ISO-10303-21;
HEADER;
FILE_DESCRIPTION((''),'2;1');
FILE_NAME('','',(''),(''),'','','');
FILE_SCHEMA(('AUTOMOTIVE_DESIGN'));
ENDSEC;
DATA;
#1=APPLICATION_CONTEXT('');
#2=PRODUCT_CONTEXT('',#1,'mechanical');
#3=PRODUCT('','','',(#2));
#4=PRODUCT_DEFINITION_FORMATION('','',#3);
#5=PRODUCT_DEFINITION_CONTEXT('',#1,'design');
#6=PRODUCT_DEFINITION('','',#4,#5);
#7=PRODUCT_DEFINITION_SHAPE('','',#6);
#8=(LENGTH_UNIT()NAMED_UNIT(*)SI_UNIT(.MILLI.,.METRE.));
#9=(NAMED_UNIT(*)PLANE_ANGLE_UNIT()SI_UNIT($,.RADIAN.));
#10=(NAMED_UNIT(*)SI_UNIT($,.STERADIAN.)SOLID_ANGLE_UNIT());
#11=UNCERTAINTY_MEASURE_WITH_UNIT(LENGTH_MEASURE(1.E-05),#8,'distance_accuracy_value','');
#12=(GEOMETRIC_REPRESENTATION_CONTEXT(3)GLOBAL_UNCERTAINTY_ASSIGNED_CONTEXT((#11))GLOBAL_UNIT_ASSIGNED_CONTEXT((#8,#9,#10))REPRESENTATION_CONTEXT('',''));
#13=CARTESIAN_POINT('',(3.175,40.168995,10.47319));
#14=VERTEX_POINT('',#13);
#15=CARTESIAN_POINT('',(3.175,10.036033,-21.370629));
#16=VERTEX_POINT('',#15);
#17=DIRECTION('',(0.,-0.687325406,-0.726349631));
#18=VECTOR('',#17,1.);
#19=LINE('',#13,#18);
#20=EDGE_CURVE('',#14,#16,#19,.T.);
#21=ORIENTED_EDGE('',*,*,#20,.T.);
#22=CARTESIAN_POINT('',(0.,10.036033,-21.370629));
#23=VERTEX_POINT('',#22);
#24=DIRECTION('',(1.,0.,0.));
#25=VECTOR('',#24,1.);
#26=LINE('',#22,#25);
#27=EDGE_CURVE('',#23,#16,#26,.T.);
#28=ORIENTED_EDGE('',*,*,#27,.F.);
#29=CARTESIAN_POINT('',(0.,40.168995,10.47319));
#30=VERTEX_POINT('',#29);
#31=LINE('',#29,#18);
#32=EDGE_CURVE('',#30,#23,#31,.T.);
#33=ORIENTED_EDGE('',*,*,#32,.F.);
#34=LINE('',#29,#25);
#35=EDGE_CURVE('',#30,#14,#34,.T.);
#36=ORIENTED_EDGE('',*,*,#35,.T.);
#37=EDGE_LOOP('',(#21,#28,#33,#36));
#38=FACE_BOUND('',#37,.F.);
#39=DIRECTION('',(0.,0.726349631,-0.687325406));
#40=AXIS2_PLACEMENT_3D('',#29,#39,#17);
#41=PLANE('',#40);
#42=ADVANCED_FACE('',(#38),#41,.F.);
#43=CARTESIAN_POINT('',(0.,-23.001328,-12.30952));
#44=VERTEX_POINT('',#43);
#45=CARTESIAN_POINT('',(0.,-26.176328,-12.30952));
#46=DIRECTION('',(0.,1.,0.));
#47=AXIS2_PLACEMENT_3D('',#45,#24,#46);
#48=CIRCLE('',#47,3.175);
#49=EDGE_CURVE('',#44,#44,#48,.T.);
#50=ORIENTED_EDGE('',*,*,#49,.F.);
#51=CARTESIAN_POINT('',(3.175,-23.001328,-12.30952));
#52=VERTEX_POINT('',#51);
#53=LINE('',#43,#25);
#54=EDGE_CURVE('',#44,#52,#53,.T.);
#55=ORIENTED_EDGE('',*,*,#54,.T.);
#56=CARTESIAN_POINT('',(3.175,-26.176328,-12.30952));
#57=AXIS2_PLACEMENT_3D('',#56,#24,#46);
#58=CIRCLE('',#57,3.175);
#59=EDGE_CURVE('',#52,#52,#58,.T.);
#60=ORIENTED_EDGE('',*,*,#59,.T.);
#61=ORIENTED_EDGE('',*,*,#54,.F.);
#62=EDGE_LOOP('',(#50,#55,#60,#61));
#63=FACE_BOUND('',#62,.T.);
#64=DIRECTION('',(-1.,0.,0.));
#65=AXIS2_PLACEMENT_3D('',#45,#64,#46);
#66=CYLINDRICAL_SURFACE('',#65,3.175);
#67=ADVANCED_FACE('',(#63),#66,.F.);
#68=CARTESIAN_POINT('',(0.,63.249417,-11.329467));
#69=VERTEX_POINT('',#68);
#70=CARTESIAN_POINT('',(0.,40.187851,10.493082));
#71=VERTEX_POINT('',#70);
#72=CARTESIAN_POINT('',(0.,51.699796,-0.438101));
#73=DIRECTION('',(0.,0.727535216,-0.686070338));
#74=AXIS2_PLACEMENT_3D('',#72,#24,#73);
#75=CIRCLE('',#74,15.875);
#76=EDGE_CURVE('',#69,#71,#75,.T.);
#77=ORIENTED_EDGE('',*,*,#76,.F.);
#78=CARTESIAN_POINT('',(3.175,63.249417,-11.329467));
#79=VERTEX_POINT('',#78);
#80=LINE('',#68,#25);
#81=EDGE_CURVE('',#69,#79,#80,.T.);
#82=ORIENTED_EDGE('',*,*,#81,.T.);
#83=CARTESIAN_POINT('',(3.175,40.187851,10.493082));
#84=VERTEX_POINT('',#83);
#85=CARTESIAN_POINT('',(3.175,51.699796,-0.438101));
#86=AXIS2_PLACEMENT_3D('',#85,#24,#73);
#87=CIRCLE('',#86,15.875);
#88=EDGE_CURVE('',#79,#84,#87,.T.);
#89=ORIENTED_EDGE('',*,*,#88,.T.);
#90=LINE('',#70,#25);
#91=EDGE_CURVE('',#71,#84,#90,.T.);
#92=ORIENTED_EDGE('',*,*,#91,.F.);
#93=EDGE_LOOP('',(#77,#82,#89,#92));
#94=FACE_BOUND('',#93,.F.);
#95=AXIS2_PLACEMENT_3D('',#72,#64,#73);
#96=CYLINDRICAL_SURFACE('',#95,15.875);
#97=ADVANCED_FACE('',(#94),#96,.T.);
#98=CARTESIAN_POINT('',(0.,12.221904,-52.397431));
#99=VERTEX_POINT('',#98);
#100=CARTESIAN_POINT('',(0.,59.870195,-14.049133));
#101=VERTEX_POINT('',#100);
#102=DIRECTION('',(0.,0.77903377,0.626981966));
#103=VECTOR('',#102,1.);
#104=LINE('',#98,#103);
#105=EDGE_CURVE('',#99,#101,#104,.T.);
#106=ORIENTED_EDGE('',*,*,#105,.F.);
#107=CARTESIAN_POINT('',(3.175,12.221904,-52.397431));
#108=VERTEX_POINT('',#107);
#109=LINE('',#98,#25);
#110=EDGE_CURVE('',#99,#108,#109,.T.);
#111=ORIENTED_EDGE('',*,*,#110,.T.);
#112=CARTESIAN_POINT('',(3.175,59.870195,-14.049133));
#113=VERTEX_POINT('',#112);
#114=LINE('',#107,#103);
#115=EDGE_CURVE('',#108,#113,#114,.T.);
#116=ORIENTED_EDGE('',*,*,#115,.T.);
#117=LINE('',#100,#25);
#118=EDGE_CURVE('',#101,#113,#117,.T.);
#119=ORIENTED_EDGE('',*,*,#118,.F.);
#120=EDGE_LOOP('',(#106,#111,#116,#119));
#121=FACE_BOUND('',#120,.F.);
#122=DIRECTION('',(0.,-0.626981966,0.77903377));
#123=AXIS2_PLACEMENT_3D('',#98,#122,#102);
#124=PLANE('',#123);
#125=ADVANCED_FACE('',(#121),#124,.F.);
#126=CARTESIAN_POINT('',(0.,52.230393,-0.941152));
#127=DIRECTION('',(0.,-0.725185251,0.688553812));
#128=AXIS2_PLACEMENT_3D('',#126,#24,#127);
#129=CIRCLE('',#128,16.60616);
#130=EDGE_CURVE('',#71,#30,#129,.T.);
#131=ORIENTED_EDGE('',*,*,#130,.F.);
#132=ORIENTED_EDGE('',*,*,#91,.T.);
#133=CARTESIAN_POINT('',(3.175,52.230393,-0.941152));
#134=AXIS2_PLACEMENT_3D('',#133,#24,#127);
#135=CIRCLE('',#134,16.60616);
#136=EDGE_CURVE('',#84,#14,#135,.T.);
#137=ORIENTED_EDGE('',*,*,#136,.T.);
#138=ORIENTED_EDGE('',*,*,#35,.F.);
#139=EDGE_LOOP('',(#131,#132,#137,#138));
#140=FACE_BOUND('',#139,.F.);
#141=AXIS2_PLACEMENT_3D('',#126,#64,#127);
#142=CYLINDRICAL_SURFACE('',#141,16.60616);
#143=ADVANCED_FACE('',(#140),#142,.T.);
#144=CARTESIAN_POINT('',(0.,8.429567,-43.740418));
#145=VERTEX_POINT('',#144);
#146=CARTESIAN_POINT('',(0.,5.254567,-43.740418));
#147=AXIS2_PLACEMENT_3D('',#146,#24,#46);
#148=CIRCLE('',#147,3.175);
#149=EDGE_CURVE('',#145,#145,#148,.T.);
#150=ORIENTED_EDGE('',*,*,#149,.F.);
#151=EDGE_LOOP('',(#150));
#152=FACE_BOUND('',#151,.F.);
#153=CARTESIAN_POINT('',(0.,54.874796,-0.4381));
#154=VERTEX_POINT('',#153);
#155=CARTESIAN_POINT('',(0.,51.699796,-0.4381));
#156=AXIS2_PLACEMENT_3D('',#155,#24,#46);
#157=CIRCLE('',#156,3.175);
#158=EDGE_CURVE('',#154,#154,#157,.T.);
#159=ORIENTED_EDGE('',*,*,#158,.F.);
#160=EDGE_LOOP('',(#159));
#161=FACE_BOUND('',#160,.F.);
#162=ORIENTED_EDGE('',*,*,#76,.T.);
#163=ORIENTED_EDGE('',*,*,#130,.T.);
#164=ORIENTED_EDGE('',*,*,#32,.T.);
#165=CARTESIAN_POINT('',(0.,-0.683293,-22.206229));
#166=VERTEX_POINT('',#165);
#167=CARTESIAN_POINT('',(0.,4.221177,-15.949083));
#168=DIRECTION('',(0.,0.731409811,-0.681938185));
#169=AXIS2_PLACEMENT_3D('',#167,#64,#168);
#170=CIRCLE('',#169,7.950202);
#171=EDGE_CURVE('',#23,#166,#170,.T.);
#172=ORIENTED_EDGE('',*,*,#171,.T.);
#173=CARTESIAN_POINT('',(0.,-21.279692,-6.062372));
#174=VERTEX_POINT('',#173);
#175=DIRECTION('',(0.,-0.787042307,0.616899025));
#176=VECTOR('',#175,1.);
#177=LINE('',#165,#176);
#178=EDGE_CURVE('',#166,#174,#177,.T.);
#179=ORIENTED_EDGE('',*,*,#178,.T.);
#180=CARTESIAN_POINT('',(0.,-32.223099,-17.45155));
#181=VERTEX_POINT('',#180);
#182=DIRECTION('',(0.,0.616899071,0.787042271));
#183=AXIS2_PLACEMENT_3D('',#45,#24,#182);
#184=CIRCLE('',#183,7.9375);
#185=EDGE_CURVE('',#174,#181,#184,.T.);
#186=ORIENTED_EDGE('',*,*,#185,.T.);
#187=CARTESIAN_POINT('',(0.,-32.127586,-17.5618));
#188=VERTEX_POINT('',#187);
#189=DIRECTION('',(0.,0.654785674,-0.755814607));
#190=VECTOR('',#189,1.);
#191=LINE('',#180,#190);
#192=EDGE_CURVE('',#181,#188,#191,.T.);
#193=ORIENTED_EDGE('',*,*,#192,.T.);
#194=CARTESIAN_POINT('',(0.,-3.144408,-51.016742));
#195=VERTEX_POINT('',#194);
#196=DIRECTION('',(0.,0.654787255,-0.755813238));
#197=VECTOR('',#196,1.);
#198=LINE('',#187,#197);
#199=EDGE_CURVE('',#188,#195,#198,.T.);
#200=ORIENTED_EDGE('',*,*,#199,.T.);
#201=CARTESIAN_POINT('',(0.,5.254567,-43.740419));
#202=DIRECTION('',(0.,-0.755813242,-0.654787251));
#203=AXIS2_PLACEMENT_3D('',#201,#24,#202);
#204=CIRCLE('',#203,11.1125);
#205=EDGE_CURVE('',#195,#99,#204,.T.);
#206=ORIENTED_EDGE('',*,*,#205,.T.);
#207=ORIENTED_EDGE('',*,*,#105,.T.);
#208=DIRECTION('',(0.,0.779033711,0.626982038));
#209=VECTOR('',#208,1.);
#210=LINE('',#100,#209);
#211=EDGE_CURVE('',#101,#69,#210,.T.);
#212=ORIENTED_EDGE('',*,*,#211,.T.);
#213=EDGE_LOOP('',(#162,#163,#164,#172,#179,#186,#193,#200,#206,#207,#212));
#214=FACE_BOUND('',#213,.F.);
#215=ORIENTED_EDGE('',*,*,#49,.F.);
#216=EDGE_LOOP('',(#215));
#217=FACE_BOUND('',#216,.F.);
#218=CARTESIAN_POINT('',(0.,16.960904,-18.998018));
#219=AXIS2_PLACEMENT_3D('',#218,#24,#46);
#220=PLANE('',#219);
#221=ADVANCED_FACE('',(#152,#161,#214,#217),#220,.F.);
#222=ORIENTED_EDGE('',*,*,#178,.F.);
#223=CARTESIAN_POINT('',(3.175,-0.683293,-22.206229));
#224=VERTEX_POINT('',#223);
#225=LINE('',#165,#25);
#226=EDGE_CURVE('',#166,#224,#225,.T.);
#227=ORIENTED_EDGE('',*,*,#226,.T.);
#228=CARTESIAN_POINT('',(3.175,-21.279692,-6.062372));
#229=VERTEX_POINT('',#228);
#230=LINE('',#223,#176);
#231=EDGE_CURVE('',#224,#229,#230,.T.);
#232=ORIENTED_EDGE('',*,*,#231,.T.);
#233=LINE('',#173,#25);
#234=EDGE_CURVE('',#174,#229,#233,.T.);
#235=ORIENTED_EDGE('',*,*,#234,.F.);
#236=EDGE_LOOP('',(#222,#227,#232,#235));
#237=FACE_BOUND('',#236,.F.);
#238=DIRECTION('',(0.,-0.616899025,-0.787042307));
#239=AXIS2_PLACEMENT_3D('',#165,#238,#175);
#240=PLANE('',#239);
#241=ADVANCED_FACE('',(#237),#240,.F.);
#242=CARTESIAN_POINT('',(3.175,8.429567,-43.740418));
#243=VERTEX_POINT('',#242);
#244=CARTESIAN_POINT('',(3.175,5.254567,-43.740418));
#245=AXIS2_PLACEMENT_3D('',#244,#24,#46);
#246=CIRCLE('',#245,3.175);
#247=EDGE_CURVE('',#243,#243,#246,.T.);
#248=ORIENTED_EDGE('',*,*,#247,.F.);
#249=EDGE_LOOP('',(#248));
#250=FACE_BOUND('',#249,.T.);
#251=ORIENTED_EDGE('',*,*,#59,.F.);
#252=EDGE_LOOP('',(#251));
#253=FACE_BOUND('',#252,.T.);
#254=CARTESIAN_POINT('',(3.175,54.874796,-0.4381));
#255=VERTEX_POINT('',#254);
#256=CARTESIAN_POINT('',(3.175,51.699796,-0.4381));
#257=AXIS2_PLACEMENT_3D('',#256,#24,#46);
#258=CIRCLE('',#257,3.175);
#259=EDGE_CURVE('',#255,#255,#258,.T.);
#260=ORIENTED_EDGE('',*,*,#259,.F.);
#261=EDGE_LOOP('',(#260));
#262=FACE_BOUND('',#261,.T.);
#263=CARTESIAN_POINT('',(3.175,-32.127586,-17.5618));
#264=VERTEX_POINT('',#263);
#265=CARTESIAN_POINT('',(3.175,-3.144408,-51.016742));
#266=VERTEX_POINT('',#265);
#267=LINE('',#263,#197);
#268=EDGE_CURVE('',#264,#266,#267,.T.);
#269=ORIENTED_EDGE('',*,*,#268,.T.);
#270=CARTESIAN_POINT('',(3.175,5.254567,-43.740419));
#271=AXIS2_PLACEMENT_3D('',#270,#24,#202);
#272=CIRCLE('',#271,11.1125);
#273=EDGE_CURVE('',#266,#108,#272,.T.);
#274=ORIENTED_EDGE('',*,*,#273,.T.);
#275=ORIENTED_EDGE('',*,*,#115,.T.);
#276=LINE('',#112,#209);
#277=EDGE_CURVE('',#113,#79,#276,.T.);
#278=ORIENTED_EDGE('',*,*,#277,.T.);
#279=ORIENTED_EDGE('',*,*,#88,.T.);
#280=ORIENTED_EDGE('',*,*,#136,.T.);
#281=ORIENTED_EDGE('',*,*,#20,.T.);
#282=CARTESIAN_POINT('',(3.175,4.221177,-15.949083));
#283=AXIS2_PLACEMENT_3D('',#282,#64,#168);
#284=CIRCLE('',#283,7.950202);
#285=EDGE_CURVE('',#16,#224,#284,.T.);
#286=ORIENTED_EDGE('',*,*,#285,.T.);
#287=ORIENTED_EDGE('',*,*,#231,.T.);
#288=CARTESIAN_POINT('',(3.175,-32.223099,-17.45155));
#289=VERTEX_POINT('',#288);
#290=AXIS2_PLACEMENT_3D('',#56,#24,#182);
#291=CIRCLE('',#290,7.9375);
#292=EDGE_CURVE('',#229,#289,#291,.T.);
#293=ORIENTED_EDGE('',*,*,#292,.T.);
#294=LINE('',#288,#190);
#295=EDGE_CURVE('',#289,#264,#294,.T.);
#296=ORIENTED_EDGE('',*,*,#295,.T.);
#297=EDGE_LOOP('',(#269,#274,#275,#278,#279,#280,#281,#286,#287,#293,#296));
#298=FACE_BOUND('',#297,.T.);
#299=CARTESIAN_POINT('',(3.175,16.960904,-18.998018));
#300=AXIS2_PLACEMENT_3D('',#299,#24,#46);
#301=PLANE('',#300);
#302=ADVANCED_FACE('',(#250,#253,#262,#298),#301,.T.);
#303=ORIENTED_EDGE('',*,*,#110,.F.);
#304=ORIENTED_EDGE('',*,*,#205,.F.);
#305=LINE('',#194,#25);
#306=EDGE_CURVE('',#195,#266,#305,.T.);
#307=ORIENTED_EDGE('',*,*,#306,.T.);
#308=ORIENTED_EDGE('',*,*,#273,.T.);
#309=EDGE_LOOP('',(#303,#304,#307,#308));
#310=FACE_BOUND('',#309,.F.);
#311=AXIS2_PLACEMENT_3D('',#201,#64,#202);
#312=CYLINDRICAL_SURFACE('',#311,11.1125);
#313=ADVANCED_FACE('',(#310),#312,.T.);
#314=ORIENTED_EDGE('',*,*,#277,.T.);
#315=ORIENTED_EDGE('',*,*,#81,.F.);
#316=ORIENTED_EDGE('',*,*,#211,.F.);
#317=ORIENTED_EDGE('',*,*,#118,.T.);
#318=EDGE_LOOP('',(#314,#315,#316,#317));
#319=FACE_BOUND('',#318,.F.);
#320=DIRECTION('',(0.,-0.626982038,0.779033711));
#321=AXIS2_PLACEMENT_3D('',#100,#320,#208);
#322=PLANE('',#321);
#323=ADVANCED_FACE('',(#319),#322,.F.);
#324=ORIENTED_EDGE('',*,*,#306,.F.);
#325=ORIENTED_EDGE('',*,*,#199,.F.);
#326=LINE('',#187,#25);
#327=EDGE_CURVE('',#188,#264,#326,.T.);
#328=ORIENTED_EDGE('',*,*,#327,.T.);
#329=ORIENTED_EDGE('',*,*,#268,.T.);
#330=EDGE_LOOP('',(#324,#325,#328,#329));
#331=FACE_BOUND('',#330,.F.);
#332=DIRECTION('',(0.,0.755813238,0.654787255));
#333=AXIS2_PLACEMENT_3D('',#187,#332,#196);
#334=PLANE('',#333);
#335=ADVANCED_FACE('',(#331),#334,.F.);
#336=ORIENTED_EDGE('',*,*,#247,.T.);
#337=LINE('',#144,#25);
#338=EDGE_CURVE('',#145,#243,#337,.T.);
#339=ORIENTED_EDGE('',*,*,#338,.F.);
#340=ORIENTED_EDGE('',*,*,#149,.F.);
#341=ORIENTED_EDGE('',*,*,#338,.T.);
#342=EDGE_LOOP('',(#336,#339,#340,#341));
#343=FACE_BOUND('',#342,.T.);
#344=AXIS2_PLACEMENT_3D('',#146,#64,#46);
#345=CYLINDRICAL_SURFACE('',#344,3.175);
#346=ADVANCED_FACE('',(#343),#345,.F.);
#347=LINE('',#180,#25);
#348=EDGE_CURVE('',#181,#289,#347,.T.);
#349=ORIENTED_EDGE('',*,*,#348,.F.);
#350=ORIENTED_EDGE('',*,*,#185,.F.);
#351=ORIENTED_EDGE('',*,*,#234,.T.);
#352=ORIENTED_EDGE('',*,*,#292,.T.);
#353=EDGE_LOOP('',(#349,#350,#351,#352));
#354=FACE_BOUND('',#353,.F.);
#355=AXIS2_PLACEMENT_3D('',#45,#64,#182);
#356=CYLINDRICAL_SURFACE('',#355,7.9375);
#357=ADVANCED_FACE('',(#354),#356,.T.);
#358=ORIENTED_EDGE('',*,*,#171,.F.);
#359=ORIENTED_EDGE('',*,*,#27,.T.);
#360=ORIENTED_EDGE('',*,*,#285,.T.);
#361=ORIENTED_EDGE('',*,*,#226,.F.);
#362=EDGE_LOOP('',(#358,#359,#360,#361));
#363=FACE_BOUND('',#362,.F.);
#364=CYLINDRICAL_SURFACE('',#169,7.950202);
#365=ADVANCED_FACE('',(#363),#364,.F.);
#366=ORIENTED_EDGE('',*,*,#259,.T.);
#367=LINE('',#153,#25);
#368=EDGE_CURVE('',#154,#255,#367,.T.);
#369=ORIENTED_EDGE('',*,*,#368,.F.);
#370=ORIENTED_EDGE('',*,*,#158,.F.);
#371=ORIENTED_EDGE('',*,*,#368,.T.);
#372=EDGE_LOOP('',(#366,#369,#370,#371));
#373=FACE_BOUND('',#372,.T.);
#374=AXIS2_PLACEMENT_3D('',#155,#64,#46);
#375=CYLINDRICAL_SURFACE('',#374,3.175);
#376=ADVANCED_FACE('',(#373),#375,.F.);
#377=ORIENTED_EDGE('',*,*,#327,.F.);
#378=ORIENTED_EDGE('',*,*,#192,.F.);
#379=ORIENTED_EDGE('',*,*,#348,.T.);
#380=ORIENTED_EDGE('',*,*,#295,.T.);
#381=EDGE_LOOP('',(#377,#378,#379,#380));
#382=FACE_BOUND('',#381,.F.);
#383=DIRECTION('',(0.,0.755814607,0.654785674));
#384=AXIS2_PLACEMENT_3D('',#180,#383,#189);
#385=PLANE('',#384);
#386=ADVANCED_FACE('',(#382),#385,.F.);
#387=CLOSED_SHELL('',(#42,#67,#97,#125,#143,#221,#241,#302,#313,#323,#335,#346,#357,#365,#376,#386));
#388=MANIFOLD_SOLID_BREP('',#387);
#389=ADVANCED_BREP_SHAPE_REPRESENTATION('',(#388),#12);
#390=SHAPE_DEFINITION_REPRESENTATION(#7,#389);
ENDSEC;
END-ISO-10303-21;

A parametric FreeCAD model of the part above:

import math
import FreeCAD as App
import Part
import Sketcher
Q = App.Units.Quantity

doc = App.newDocument("Part")
params = doc.addObject("Spreadsheet::Sheet", "Params")
for row, (alias, value) in enumerate([
    ("sketch1_diameter", "0.25 in"),
    ("sketch1_radius", "0.3125 in"),
    ("sketch1_radius2", "0.4375 in"),
    ("sketch1_radius3", "0.625 in"),
    ("sketch1_radius4", "0.3130001 in"),
    ("pad1_length", "0.125 in"),
], start=1):
    params.set(f"A{row}", alias)
    params.set(f"B{row}", "=" + value)
    params.setAlias(f"B{row}", alias)

body = doc.addObject("PartDesign::Body", "Body")

sketch1 = body.newObject("Sketcher::SketchObject", "Sketch")
sketch1.AttachmentSupport = (doc.getObject("YZ_Plane"), [""])
sketch1.MapMode = "FlatFace"
sketch1.addGeometry(Part.LineSegment(App.Vector(-0.683293, -22.206229, 0), App.Vector(-21.279692, -6.062372, 0)), False)
sketch1.addGeometry(Part.ArcOfCircle(Part.Circle(App.Vector(-26.176328, -12.30952, 0), App.Vector(0, 0, 1), 7.9375), math.radians(51.90996), math.radians(220.377049)), False)
sketch1.addGeometry(Part.LineSegment(App.Vector(-32.223099, -17.45155, 0), App.Vector(-32.127586, -17.5618, 0)), False)
sketch1.addGeometry(Part.LineSegment(App.Vector(-32.127586, -17.5618, 0), App.Vector(-3.144408, -51.016742, 0)), False)
sketch1.addGeometry(Part.ArcOfCircle(Part.Circle(App.Vector(5.254567, -43.740419, 0), App.Vector(0, 0, 1), 11.1125), math.radians(-139.09648), math.radians(-51.17219)), False)
sketch1.addGeometry(Part.LineSegment(App.Vector(12.221904, -52.397431, 0), App.Vector(59.870195, -14.049133, 0)), False)
sketch1.addGeometry(Part.LineSegment(App.Vector(59.870195, -14.049133, 0), App.Vector(63.249417, -11.329467, 0)), False)
sketch1.addGeometry(Part.ArcOfCircle(Part.Circle(App.Vector(51.699796, -0.438101, 0), App.Vector(0, 0, 1), 15.875), math.radians(-43.319841), math.radians(136.482315)), False)
sketch1.addGeometry(Part.ArcOfCircle(Part.Circle(App.Vector(52.230393, -0.941152, 0), App.Vector(0, 0, 1), 16.60616), math.radians(136.484261), math.radians(136.578828)), False)
sketch1.addGeometry(Part.LineSegment(App.Vector(40.168995, 10.47319, 0), App.Vector(10.036033, -21.370629, 0)), False)
sketch1.addGeometry(Part.ArcOfCircle(Part.Circle(App.Vector(4.221177, -15.949083, 0), App.Vector(0, 0, 1), 7.950202), math.radians(-128.090025), math.radians(-42.995286)), False)
sketch1.addGeometry(Part.Circle(App.Vector(5.254567, -43.740418, 0), App.Vector(0, 0, 1), 3.175), False)
sketch1.addGeometry(Part.Circle(App.Vector(-26.176328, -12.30952, 0), App.Vector(0, 0, 1), 3.175), False)
sketch1.addGeometry(Part.Circle(App.Vector(51.699796, -0.4381, 0), App.Vector(0, 0, 1), 3.175), False)
sketch1.addConstraint(Sketcher.Constraint("Tangent", 0, 2, 1, 1))
sketch1.addConstraint(Sketcher.Constraint("Coincident", 1, 2, 2, 1))
sketch1.addConstraint(Sketcher.Constraint("Coincident", 2, 2, 3, 1))
sketch1.addConstraint(Sketcher.Constraint("Tangent", 3, 2, 4, 1))
sketch1.addConstraint(Sketcher.Constraint("Tangent", 4, 2, 5, 1))
sketch1.addConstraint(Sketcher.Constraint("Coincident", 5, 2, 6, 1))
sketch1.addConstraint(Sketcher.Constraint("Coincident", 6, 2, 7, 1))
sketch1.addConstraint(Sketcher.Constraint("Coincident", 7, 2, 8, 1))
sketch1.addConstraint(Sketcher.Constraint("Coincident", 8, 2, 9, 1))
sketch1.addConstraint(Sketcher.Constraint("Coincident", 9, 2, 10, 2))
sketch1.addConstraint(Sketcher.Constraint("Tangent", 10, 1, 0, 1))
sketch1.addConstraint(Sketcher.Constraint("Coincident", 11, 3, 4, 3))
sketch1.addConstraint(Sketcher.Constraint("Coincident", 12, 3, 1, 3))
sketch1.addConstraint(Sketcher.Constraint("Coincident", 13, 3, 7, 3))
sketch1.addConstraint(Sketcher.Constraint("Equal", 11, 12))
sketch1.addConstraint(Sketcher.Constraint("Equal", 12, 13))
sketch1.addConstraint(Sketcher.Constraint("Parallel", 5, 6))
sketch1.addConstraint(Sketcher.Constraint("Diameter", 11, Q("0.25 in")))
sketch1.addConstraint(Sketcher.Constraint("Radius", 1, Q("0.3125 in")))
sketch1.addConstraint(Sketcher.Constraint("Radius", 4, Q("0.4375 in")))
sketch1.addConstraint(Sketcher.Constraint("Radius", 7, Q("0.625 in")))
sketch1.addConstraint(Sketcher.Constraint("Radius", 10, Q("0.3130001 in")))
sketch1.addConstraint(Sketcher.Constraint("Radius", 8, Q("16.60616 mm")))
sketch1.addConstraint(Sketcher.Constraint("DistanceY", 7, 3, -1, 1, Q("0.438101 mm")))
sketch1.addConstraint(Sketcher.Constraint("DistanceX", 1, 2, -1, 1, Q("32.223099 mm")))
sketch1.addConstraint(Sketcher.Constraint("DistanceY", 2, 2, -1, 1, Q("17.5618 mm")))
sketch1.addConstraint(Sketcher.Constraint("DistanceY", 4, 3, 1, 3, Q("31.430899 mm")))
sketch1.addConstraint(Sketcher.Constraint("DistanceX", 8, 3, 5, 2, Q("7.639802 mm")))
sketch1.addConstraint(Sketcher.Constraint("DistanceX", 7, 3, 5, 2, Q("8.170399 mm")))
sketch1.addConstraint(Sketcher.Constraint("DistanceX", 8, 2, 13, 3, Q("11.530801 mm")))
sketch1.addConstraint(Sketcher.Constraint("DistanceY", 4, 2, 9, 2, Q("31.026802 mm")))
sketch1.addConstraint(Sketcher.Constraint("DistanceY", 10, 1, 9, 2, Q("0.8356 mm")))
sketch1.addConstraint(Sketcher.Constraint("DistanceX", 0, 2, 10, 1, Q("20.596399 mm")))
sketch1.addConstraint(Sketcher.Constraint("Distance", 2, Q("0.145869 mm")))
sketch1.addConstraint(Sketcher.Constraint("Distance", 5, Q("61.163319 mm")))
sketch1.addConstraint(Sketcher.Constraint("Distance", 6, Q("4.33771 mm")))
sketch1.addConstraint(Sketcher.Constraint("DistanceX", 1, 3, -1, 1, Q("26.176328 mm")))
sketch1.addConstraint(Sketcher.Constraint("DistanceY", 1, 3, -1, 1, Q("12.30952 mm")))
sketch1.addConstraint(Sketcher.Constraint("DistanceX", -1, 1, 7, 2, Q("40.187851 mm")))
sketch1.addConstraint(Sketcher.Constraint("DistanceY", -1, 1, 7, 2, Q("10.493082 mm")))
sketch1.setExpression("Constraints[17]", "Params.sketch1_diameter")
sketch1.setExpression("Constraints[18]", "Params.sketch1_radius")
sketch1.setExpression("Constraints[19]", "Params.sketch1_radius2")
sketch1.setExpression("Constraints[20]", "Params.sketch1_radius3")
sketch1.setExpression("Constraints[21]", "Params.sketch1_radius4")
pad1 = body.newObject("PartDesign::Pad", "Pad")
pad1.Profile = sketch1
pad1.setExpression("Length", "Params.pad1_length")

doc.recompute()
